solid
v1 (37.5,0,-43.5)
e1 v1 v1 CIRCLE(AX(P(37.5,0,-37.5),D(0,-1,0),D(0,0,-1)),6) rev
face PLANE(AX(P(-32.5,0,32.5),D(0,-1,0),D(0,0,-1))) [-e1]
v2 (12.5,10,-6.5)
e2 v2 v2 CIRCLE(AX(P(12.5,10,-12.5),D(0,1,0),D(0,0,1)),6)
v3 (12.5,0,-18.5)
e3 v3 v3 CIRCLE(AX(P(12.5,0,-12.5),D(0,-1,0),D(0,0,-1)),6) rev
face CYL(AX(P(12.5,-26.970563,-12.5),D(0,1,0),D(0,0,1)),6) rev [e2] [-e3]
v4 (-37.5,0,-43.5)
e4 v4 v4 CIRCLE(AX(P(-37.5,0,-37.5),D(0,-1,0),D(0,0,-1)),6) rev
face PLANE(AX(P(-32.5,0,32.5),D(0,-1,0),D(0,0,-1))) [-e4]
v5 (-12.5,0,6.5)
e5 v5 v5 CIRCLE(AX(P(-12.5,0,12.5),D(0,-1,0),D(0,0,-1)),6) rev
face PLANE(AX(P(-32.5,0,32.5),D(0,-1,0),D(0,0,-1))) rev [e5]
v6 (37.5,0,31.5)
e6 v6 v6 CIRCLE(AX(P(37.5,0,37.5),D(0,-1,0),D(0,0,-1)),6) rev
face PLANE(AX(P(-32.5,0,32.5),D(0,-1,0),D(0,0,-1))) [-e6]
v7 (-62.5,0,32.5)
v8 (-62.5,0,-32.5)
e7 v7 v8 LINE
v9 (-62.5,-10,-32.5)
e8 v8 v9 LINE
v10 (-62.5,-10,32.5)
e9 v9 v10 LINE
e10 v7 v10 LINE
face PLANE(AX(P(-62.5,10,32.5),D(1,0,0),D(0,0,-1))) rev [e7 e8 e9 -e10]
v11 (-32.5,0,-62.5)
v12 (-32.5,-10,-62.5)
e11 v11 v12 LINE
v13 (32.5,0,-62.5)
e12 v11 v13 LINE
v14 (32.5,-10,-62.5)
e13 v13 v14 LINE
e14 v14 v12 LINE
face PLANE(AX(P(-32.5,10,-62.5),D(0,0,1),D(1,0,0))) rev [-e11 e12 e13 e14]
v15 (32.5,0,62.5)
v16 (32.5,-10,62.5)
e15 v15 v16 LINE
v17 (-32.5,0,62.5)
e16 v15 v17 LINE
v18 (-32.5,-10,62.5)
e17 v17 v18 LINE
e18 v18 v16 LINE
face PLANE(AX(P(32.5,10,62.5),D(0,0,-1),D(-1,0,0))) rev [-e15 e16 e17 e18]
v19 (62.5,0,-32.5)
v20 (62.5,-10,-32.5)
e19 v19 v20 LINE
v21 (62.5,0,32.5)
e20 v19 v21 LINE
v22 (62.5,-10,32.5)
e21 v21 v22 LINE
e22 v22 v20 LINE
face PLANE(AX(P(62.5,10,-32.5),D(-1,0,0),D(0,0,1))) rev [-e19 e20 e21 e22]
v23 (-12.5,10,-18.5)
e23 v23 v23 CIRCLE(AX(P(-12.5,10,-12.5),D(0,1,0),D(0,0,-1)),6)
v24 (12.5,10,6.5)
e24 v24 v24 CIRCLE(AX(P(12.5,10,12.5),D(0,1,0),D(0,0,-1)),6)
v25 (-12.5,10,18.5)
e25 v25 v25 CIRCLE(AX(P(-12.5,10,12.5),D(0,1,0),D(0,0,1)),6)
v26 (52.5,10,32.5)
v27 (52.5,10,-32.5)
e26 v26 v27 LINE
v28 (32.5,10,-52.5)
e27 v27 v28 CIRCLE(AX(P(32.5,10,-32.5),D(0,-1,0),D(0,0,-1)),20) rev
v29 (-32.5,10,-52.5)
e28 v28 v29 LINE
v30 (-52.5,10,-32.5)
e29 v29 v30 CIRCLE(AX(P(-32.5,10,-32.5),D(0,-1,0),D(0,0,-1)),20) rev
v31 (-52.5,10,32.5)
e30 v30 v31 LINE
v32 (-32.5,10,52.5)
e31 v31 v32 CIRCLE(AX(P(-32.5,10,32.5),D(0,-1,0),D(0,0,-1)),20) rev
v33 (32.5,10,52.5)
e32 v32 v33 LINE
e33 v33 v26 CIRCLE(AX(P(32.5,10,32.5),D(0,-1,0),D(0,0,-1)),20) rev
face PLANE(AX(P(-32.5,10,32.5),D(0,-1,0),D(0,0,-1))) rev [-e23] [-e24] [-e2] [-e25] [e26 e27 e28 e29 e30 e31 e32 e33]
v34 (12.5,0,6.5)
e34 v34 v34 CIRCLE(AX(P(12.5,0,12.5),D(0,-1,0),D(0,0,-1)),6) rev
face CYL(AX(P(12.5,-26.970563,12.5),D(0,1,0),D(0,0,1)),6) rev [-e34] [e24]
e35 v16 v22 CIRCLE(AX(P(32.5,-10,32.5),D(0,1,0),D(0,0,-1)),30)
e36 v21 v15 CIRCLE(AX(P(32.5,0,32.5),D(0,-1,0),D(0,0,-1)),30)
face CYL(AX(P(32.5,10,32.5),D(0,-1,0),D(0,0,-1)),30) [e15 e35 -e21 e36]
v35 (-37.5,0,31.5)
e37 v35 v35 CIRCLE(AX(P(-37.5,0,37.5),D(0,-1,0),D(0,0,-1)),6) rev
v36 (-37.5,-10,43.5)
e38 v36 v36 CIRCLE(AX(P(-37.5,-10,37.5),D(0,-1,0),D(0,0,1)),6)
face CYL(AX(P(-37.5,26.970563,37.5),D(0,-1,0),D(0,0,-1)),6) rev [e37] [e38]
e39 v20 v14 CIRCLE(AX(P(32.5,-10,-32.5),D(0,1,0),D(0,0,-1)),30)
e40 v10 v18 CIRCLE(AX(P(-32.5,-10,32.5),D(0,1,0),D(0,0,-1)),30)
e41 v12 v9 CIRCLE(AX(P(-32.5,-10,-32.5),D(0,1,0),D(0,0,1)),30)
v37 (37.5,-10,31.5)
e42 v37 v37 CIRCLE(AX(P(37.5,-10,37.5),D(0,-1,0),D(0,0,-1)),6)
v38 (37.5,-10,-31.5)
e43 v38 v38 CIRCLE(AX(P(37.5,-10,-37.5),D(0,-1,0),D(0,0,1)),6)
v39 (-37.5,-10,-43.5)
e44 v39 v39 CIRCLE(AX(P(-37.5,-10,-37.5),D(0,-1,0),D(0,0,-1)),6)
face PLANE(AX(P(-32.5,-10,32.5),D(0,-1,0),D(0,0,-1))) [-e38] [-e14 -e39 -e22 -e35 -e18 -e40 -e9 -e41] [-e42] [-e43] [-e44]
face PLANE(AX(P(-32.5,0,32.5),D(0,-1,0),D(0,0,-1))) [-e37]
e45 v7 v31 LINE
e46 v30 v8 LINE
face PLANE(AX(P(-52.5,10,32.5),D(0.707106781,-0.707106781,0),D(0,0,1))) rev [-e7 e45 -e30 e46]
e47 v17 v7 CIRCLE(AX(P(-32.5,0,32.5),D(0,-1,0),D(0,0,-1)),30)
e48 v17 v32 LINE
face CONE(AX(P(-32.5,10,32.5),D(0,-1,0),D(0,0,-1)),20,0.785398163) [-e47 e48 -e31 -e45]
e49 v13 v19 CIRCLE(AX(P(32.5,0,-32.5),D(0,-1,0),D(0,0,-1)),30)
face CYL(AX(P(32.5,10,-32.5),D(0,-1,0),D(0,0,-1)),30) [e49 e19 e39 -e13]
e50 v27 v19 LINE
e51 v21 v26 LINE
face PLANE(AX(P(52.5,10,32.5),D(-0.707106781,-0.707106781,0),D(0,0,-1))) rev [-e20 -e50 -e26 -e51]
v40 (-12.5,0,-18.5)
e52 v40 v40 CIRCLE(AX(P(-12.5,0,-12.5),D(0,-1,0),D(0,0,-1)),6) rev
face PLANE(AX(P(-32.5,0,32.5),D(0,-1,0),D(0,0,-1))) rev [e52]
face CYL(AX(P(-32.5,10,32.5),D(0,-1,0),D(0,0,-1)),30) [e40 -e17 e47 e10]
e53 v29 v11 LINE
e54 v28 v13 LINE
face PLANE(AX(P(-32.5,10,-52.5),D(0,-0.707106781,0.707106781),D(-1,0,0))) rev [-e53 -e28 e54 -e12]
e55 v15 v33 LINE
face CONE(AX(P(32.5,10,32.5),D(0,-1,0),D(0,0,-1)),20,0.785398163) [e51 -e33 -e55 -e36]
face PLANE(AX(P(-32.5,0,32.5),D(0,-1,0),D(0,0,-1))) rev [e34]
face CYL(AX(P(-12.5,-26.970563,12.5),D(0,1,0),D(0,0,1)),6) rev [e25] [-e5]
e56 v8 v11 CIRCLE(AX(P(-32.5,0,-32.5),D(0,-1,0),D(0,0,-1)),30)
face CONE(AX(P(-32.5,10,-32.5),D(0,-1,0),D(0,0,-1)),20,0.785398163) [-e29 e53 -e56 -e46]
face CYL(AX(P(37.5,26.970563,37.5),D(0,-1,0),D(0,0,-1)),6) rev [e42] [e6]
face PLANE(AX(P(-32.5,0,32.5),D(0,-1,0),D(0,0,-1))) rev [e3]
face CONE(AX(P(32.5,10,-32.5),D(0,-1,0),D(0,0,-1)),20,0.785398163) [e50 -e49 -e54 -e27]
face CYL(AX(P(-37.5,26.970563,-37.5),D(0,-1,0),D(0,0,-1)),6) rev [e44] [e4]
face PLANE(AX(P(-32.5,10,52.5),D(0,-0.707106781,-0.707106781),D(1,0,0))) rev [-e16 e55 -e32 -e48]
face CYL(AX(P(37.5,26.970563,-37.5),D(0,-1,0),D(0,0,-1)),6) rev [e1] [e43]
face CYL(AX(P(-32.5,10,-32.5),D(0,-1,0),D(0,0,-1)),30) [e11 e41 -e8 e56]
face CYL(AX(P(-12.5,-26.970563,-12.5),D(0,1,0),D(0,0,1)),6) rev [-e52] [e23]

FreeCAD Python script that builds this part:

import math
import FreeCAD as App
import Part
import Sketcher
from FreeCAD import Vector
Q = App.Units.Quantity


def edges_at(feature, points):
    """Names of the edges that pass closest to the given points."""
    edges = feature.Shape.Edges
    near = lambda p: min(range(len(edges)), key=lambda i: edges[i].distToShape(Part.Vertex(*p))[0])
    return sorted({f"Edge{near(p) + 1}" for p in points})

doc = App.newDocument("Part")
params = doc.addObject("Spreadsheet::Sheet", "Params")
for row, (alias, value) in enumerate([
    ("sketch1_radius", "30 mm"),
    ("sketch1_width", "65 mm"),
    ("pad1_length", "20 mm"),
    ("chamfer_size", "10 mm"),
    ("sketch2_diameter", "12 mm"),
    ("pocket1_length", "10 mm"),
    ("sketch3_diameter", "12 mm"),
    ("pocket2_length", "10 mm"),
], start=1):
    params.set(f"A{row}", alias)
    params.set(f"B{row}", "=" + value)
    params.setAlias(f"B{row}", alias)

body = doc.addObject("PartDesign::Body", "Body")

# Sketch on XZ plane
sketch1 = body.newObject("Sketcher::SketchObject", "Sketch")
sketch1.AttachmentSupport = (doc.getObject("XZ_Plane"), [""])
sketch1.MapMode = "FlatFace"
sketch1.addGeometry([
    Part.LineSegment(Vector(32.5, -62.5, 0), Vector(-32.5, -62.5, 0)),  # 0
    Part.ArcOfCircle(Part.Circle(Vector(-32.5, -32.5, 0), Vector(0, 0, 1), 30), math.radians(180), math.radians(270)),  # 1
    Part.LineSegment(Vector(-62.5, -32.5, 0), Vector(-62.5, 32.5, 0)),  # 2
    Part.ArcOfCircle(Part.Circle(Vector(-32.5, 32.5, 0), Vector(0, 0, 1), 30), math.radians(90), math.radians(180)),  # 3
    Part.LineSegment(Vector(-32.5, 62.5, 0), Vector(32.5, 62.5, 0)),  # 4
    Part.ArcOfCircle(Part.Circle(Vector(32.5, 32.5, 0), Vector(0, 0, 1), 30), math.radians(0), math.radians(90)),  # 5
    Part.LineSegment(Vector(62.5, 32.5, 0), Vector(62.5, -32.5, 0)),  # 6
    Part.ArcOfCircle(Part.Circle(Vector(32.5, -32.5, 0), Vector(0, 0, 1), 30), math.radians(-90), math.radians(0)),  # 7
], False)
sketch1.addConstraint([
    Sketcher.Constraint("Tangent", 0, 2, 1, 2),
    Sketcher.Constraint("Tangent", 1, 1, 2, 1),
    Sketcher.Constraint("Tangent", 2, 2, 3, 2),
    Sketcher.Constraint("Tangent", 3, 1, 4, 1),
    Sketcher.Constraint("Tangent", 4, 2, 5, 2),
    Sketcher.Constraint("Tangent", 5, 1, 6, 1),
    Sketcher.Constraint("Tangent", 6, 2, 7, 2),
    Sketcher.Constraint("Tangent", 7, 1, 0, 1),
    Sketcher.Constraint("Horizontal", 0),
    Sketcher.Constraint("Vertical", 2),
    Sketcher.Constraint("Horizontal", 4),
    Sketcher.Constraint("Vertical", 6),
    Sketcher.Constraint("Equal", 1, 3),
    Sketcher.Constraint("Equal", 3, 5),
    Sketcher.Constraint("Equal", 5, 7),
    Sketcher.Constraint("Symmetric", 1, 3, 5, 3, -1, 1),
    Sketcher.Constraint("Equal", 4, 2),
    Sketcher.Constraint("Radius", 1, Q("30 mm")),
    Sketcher.Constraint("DistanceX", 0, 2, 0, 1, Q("65 mm")),
])
sketch1.setExpression("Constraints[17]", "Params.sketch1_radius")
sketch1.setExpression("Constraints[18]", "Params.sketch1_width")
pad1 = body.newObject("PartDesign::Pad", "Pad")
pad1.Profile = sketch1
pad1.setExpression("Length", "Params.pad1_length")
pad1.Midplane = True
doc.recompute()

chamfer = body.newObject("PartDesign::Chamfer", "Chamfer")
chamfer.Base = (pad1, edges_at(pad1, [
    (53.713, 10, 53.713),
    (62.5, 10, 0),
    (53.713, 10, -53.713),
    (0, 10, -62.5),
    (-53.713, 10, -53.713),
    (-62.5, 10, 0),
    (-53.713, 10, 53.713),
    (0, 10, 62.5),
]))
chamfer.setExpression("Size", "Params.chamfer_size")

# Sketch on XZ plane
sketch2 = body.newObject("Sketcher::SketchObject", "Sketch001")
sketch2.AttachmentSupport = (doc.getObject("XZ_Plane"), [""])
sketch2.MapMode = "FlatFace"
sketch2.AttachmentOffset = App.Placement(Vector(0, 0, -10), App.Rotation())
sketch2.addGeometry([
    Part.Circle(Vector(12.5, -12.5, 0), Vector(0, 0, 1), 6),
    Part.Circle(Vector(-12.5, -12.5, 0), Vector(0, 0, 1), 6),
    Part.Circle(Vector(12.5, 12.5, 0), Vector(0, 0, 1), 6),
    Part.Circle(Vector(-12.5, 12.5, 0), Vector(0, 0, 1), 6),
], False)
sketch2.addConstraint([
    Sketcher.Constraint("Equal", 0, 1),
    Sketcher.Constraint("Equal", 1, 2),
    Sketcher.Constraint("Equal", 2, 3),
    Sketcher.Constraint("Symmetric", 1, 3, 2, 3, -1, 1),
    Sketcher.Constraint("Symmetric", 0, 3, 3, 3, -1, 1),
    Sketcher.Constraint("Symmetric", 0, 3, 1, 3, -2),
    Sketcher.Constraint("Diameter", 0, Q("12 mm")),
    Sketcher.Constraint("DistanceX", 1, 3, 0, 3, Q("25 mm")),
    Sketcher.Constraint("DistanceY", 0, 3, 2, 3, Q("25 mm")),
])
sketch2.setExpression("Constraints[6]", "Params.sketch2_diameter")
pocket1 = body.newObject("PartDesign::Pocket", "Pocket")
pocket1.Profile = sketch2
pocket1.setExpression("Length", "Params.pocket1_length")
pocket1.Reversed = True

# Sketch on XZ plane
sketch3 = body.newObject("Sketcher::SketchObject", "Sketch002")
sketch3.AttachmentSupport = (doc.getObject("XZ_Plane"), [""])
sketch3.MapMode = "FlatFace"
sketch3.AttachmentOffset = App.Placement(Vector(0, 0, 10), App.Rotation())
sketch3.addGeometry([
    Part.Circle(Vector(37.5, 37.5, 0), Vector(0, 0, 1), 6),
    Part.Circle(Vector(-37.5, 37.5, 0), Vector(0, 0, 1), 6),
    Part.Circle(Vector(37.5, -37.5, 0), Vector(0, 0, 1), 6),
    Part.Circle(Vector(-37.5, -37.5, 0), Vector(0, 0, 1), 6),
], False)
sketch3.addConstraint([
    Sketcher.Constraint("Equal", 0, 1),
    Sketcher.Constraint("Equal", 1, 2),
    Sketcher.Constraint("Equal", 2, 3),
    Sketcher.Constraint("Symmetric", 1, 3, 2, 3, -1, 1),
    Sketcher.Constraint("Symmetric", 0, 3, 3, 3, -1, 1),
    Sketcher.Constraint("Symmetric", 0, 3, 1, 3, -2),
    Sketcher.Constraint("Diameter", 0, Q("12 mm")),
    Sketcher.Constraint("DistanceX", 1, 3, 0, 3, Q("75 mm")),
    Sketcher.Constraint("DistanceY", 2, 3, 0, 3, Q("75 mm")),
])
sketch3.setExpression("Constraints[6]", "Params.sketch3_diameter")
pocket2 = body.newObject("PartDesign::Pocket", "Pocket001")
pocket2.Profile = sketch3
pocket2.setExpression("Length", "Params.pocket2_length")

doc.recompute()
